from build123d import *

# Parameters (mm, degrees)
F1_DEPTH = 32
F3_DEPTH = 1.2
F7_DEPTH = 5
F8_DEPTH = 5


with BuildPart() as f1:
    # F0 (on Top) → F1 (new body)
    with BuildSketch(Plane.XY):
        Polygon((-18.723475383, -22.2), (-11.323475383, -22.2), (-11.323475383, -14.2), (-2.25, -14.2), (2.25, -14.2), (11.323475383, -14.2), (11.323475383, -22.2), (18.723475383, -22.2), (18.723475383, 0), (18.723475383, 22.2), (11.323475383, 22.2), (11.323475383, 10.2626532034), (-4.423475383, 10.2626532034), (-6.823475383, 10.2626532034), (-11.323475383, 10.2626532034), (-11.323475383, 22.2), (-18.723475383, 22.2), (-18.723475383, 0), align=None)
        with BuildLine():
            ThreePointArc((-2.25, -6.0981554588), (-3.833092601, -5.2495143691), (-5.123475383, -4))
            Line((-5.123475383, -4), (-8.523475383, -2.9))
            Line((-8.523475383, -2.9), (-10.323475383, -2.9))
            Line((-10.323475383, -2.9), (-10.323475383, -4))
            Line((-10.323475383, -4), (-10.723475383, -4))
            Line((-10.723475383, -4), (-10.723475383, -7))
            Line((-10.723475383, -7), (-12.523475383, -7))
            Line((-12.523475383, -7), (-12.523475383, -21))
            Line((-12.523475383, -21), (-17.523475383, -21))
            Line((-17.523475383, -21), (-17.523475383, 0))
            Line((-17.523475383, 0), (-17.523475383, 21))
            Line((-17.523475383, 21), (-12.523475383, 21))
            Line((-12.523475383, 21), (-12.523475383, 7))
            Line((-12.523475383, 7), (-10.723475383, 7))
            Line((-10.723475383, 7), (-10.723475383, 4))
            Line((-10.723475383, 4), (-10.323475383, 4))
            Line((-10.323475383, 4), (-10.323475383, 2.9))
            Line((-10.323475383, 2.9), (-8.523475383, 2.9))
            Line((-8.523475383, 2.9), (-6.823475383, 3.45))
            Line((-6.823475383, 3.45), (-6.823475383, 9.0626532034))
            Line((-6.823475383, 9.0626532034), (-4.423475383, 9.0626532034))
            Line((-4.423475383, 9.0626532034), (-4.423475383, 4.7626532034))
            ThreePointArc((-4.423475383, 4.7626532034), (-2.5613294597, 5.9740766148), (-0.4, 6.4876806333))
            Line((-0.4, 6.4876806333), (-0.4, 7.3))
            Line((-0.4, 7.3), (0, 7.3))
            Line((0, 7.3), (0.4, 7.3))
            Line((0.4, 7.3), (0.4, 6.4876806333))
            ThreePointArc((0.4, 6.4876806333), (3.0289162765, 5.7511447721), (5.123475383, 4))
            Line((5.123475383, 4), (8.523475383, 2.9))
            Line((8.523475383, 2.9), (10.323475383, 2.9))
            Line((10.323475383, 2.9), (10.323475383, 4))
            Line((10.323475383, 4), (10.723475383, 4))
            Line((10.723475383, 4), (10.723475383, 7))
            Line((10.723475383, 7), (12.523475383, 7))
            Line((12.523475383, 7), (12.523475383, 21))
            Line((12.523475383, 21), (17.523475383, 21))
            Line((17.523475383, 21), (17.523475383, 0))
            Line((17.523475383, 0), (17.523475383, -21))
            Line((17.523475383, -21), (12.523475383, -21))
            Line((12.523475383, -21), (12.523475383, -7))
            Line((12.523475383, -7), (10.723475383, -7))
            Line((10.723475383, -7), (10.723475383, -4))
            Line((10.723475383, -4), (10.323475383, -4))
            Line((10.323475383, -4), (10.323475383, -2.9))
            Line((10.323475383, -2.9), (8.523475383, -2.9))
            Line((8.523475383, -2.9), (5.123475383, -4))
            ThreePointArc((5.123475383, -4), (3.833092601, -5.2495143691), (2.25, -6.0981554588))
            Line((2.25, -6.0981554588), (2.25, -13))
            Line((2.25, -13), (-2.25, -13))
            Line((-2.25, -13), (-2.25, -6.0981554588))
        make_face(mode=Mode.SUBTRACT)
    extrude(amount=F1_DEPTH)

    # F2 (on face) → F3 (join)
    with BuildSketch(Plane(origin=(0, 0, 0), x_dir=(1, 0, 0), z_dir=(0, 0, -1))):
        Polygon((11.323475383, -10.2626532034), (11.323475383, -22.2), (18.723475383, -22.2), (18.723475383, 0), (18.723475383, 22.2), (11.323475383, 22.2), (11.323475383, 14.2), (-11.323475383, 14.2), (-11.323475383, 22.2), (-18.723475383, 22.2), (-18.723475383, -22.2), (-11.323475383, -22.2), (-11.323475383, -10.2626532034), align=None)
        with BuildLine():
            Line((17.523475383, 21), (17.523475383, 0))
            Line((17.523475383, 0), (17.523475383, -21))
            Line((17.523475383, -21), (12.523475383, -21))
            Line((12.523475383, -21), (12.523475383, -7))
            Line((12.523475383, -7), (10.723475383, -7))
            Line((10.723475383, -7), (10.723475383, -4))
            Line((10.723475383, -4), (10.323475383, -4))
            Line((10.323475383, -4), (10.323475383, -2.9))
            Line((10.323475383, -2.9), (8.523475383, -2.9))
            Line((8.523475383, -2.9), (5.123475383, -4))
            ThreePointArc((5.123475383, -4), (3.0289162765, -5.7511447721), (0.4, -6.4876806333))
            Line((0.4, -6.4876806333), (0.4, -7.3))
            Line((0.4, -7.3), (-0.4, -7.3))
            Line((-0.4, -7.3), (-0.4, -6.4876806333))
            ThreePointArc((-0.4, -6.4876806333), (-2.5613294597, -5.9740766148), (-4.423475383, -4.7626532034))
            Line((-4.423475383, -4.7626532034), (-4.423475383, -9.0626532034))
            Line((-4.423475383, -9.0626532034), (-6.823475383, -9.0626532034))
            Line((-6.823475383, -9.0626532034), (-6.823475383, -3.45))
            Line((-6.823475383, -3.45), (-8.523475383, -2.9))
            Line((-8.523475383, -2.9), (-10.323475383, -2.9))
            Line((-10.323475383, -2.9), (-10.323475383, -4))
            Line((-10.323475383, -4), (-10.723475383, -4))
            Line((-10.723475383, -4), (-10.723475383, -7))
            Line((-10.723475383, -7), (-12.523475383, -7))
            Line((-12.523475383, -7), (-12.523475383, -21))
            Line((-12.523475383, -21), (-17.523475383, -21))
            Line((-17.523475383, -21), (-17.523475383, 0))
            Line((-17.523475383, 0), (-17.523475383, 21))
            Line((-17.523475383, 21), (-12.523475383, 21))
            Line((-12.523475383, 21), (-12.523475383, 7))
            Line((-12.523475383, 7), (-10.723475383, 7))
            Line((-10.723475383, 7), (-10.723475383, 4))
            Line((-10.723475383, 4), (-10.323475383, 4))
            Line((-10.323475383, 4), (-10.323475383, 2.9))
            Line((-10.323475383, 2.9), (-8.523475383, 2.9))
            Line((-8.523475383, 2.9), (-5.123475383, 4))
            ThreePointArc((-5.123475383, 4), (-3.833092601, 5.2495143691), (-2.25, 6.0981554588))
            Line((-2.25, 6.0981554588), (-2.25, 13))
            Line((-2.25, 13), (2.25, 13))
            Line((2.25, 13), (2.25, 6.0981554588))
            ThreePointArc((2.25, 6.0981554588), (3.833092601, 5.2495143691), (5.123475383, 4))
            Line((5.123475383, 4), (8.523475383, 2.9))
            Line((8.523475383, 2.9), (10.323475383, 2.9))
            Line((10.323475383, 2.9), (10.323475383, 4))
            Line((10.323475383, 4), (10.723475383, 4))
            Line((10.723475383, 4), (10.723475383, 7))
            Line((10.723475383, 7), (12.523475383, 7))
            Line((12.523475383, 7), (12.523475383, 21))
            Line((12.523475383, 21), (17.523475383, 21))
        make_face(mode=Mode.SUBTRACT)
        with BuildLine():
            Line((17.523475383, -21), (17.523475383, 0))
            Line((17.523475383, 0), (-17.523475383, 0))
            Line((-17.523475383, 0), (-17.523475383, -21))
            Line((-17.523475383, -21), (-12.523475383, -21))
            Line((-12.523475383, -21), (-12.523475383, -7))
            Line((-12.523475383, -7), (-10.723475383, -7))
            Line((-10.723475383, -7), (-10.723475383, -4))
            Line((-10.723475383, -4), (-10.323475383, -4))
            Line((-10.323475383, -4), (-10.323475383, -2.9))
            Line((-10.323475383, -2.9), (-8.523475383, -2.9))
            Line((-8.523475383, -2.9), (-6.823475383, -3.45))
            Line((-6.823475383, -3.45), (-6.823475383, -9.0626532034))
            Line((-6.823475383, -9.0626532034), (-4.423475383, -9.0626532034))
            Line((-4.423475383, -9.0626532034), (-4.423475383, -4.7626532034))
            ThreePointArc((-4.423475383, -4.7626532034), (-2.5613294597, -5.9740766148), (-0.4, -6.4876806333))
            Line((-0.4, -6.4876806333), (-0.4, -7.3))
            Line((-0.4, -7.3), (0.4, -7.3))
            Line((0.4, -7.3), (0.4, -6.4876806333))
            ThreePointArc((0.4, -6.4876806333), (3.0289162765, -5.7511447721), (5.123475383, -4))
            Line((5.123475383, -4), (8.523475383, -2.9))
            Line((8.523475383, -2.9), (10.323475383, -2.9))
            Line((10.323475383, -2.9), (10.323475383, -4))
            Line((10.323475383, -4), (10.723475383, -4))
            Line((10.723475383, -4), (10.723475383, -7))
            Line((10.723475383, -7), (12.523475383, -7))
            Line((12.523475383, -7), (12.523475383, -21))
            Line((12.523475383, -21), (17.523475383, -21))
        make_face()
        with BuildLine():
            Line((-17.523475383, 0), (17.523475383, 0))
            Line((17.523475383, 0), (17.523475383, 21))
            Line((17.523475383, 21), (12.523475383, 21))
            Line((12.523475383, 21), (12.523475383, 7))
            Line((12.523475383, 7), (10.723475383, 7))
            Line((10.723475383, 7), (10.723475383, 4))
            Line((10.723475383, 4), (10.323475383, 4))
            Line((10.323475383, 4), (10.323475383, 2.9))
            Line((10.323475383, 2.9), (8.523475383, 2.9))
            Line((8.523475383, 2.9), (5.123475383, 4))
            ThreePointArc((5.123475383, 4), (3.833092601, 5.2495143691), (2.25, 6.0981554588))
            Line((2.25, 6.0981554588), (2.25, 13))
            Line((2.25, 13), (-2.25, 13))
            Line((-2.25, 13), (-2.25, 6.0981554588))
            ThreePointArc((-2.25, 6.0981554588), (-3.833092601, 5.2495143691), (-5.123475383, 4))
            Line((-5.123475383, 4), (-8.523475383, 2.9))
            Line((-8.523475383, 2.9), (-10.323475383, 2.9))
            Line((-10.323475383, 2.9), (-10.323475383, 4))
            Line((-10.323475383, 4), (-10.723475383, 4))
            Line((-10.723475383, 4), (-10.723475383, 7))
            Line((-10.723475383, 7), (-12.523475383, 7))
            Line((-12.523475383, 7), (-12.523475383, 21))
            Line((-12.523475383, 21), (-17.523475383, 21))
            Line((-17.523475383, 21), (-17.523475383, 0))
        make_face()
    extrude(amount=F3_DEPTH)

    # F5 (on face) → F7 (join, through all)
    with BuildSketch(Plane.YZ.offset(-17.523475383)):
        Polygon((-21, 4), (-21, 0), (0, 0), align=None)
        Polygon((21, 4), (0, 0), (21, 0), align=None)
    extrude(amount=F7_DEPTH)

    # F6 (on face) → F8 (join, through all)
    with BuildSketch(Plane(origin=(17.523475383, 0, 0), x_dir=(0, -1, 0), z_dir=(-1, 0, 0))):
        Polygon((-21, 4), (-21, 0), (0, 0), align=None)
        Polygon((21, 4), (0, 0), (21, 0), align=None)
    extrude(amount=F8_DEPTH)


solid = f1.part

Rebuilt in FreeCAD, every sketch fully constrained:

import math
import FreeCAD as App
import Part
import Sketcher

V = App.Vector
Q = App.Units.Quantity

doc = App.newDocument("Part")
body = doc.addObject("PartDesign::Body", "Body")

sketch1 = body.newObject("Sketcher::SketchObject", "Sketch")
sketch1.AttachmentSupport = (doc.getObject("XY_Plane"), [""])
sketch1.MapMode = "FlatFace"
sketch1.addGeometry(Part.LineSegment(V(-18.723475, -22.2, 0), V(-11.323475, -22.2, 0)), False)
sketch1.addGeometry(Part.LineSegment(V(-11.323475, -22.2, 0), V(-11.323475, -14.2, 0)), False)
sketch1.addGeometry(Part.LineSegment(V(-11.323475, -14.2, 0), V(11.323475, -14.2, 0)), False)
sketch1.addGeometry(Part.LineSegment(V(11.323475, -14.2, 0), V(11.323475, -22.2, 0)), False)
sketch1.addGeometry(Part.LineSegment(V(11.323475, -22.2, 0), V(18.723475, -22.2, 0)), False)
sketch1.addGeometry(Part.LineSegment(V(18.723475, -22.2, 0), V(18.723475, 22.2, 0)), False)
sketch1.addGeometry(Part.LineSegment(V(18.723475, 22.2, 0), V(11.323475, 22.2, 0)), False)
sketch1.addGeometry(Part.LineSegment(V(11.323475, 22.2, 0), V(11.323475, 10.262653, 0)), False)
sketch1.addGeometry(Part.LineSegment(V(11.323475, 10.262653, 0), V(-11.323475, 10.262653, 0)), False)
sketch1.addGeometry(Part.LineSegment(V(-11.323475, 10.262653, 0), V(-11.323475, 22.2, 0)), False)
sketch1.addGeometry(Part.LineSegment(V(-11.323475, 22.2, 0), V(-18.723475, 22.2, 0)), False)
sketch1.addGeometry(Part.LineSegment(V(-18.723475, 22.2, 0), V(-18.723475, -22.2, 0)), False)
sketch1.addGeometry(Part.LineSegment(V(-2.25, -13, 0), V(-2.25, -6.098155, 0)), False)
sketch1.addGeometry(Part.ArcOfCircle(Part.Circle(V(0, 0, 0), V(0, 0, 1), 6.5), math.radians(-142.020128), math.radians(-110.252247)), False)
sketch1.addGeometry(Part.LineSegment(V(-5.123475, -4, 0), V(-8.523475, -2.9, 0)), False)
sketch1.addGeometry(Part.LineSegment(V(-8.523475, -2.9, 0), V(-10.323475, -2.9, 0)), False)
sketch1.addGeometry(Part.LineSegment(V(-10.323475, -2.9, 0), V(-10.323475, -4, 0)), False)
sketch1.addGeometry(Part.LineSegment(V(-10.323475, -4, 0), V(-10.723475, -4, 0)), False)
sketch1.addGeometry(Part.LineSegment(V(-10.723475, -4, 0), V(-10.723475, -7, 0)), False)
sketch1.addGeometry(Part.LineSegment(V(-10.723475, -7, 0), V(-12.523475, -7, 0)), False)
sketch1.addGeometry(Part.LineSegment(V(-12.523475, -7, 0), V(-12.523475, -21, 0)), False)
sketch1.addGeometry(Part.LineSegment(V(-12.523475, -21, 0), V(-17.523475, -21, 0)), False)
sketch1.addGeometry(Part.LineSegment(V(-17.523475, -21, 0), V(-17.523475, 21, 0)), False)
sketch1.addGeometry(Part.LineSegment(V(-17.523475, 21, 0), V(-12.523475, 21, 0)), False)
sketch1.addGeometry(Part.LineSegment(V(-12.523475, 21, 0), V(-12.523475, 7, 0)), False)
sketch1.addGeometry(Part.LineSegment(V(-12.523475, 7, 0), V(-10.723475, 7, 0)), False)
sketch1.addGeometry(Part.LineSegment(V(-10.723475, 7, 0), V(-10.723475, 4, 0)), False)
sketch1.addGeometry(Part.LineSegment(V(-10.723475, 4, 0), V(-10.323475, 4, 0)), False)
sketch1.addGeometry(Part.LineSegment(V(-10.323475, 4, 0), V(-10.323475, 2.9, 0)), False)
sketch1.addGeometry(Part.LineSegment(V(-10.323475, 2.9, 0), V(-8.523475, 2.9, 0)), False)
sketch1.addGeometry(Part.LineSegment(V(-8.523475, 2.9, 0), V(-6.823475, 3.45, 0)), False)
sketch1.addGeometry(Part.LineSegment(V(-6.823475, 3.45, 0), V(-6.823475, 9.062653, 0)), False)
sketch1.addGeometry(Part.LineSegment(V(-6.823475, 9.062653, 0), V(-4.423475, 9.062653, 0)), False)
sketch1.addGeometry(Part.LineSegment(V(-4.423475, 9.062653, 0), V(-4.423475, 4.762653, 0)), False)
sketch1.addGeometry(Part.ArcOfCircle(Part.Circle(V(0, 0, 0), V(0, 0, 1), 6.5), math.radians(93.528123), math.radians(132.885439)), False)
sketch1.addGeometry(Part.LineSegment(V(-0.4, 6.487681, 0), V(-0.4, 7.3, 0)), False)
sketch1.addGeometry(Part.LineSegment(V(-0.4, 7.3, 0), V(0.4, 7.3, 0)), False)
sketch1.addGeometry(Part.LineSegment(V(0.4, 7.3, 0), V(0.4, 6.487681, 0)), False)
sketch1.addGeometry(Part.ArcOfCircle(Part.Circle(V(0, 0, 0), V(0, 0, 1), 6.5), math.radians(37.979872), math.radians(86.471877)), False)
sketch1.addGeometry(Part.LineSegment(V(5.123475, 4, 0), V(8.523475, 2.9, 0)), False)
sketch1.addGeometry(Part.LineSegment(V(8.523475, 2.9, 0), V(10.323475, 2.9, 0)), False)
sketch1.addGeometry(Part.LineSegment(V(10.323475, 2.9, 0), V(10.323475, 4, 0)), False)
sketch1.addGeometry(Part.LineSegment(V(10.323475, 4, 0), V(10.723475, 4, 0)), False)
sketch1.addGeometry(Part.LineSegment(V(10.723475, 4, 0), V(10.723475, 7, 0)), False)
sketch1.addGeometry(Part.LineSegment(V(10.723475, 7, 0), V(12.523475, 7, 0)), False)
sketch1.addGeometry(Part.LineSegment(V(12.523475, 7, 0), V(12.523475, 21, 0)), False)
sketch1.addGeometry(Part.LineSegment(V(12.523475, 21, 0), V(17.523475, 21, 0)), False)
sketch1.addGeometry(Part.LineSegment(V(17.523475, 21, 0), V(17.523475, -21, 0)), False)
sketch1.addGeometry(Part.LineSegment(V(17.523475, -21, 0), V(12.523475, -21, 0)), False)
sketch1.addGeometry(Part.LineSegment(V(12.523475, -21, 0), V(12.523475, -7, 0)), False)
sketch1.addGeometry(Part.LineSegment(V(12.523475, -7, 0), V(10.723475, -7, 0)), False)
sketch1.addGeometry(Part.LineSegment(V(10.723475, -7, 0), V(10.723475, -4, 0)), False)
sketch1.addGeometry(Part.LineSegment(V(10.723475, -4, 0), V(10.323475, -4, 0)), False)
sketch1.addGeometry(Part.LineSegment(V(10.323475, -4, 0), V(10.323475, -2.9, 0)), False)
sketch1.addGeometry(Part.LineSegment(V(10.323475, -2.9, 0), V(8.523475, -2.9, 0)), False)
sketch1.addGeometry(Part.LineSegment(V(8.523475, -2.9, 0), V(5.123475, -4, 0)), False)
sketch1.addGeometry(Part.ArcOfCircle(Part.Circle(V(0, 0, 0), V(0, 0, 1), 6.5), math.radians(-69.747753), math.radians(-37.979872)), False)
sketch1.addGeometry(Part.LineSegment(V(2.25, -6.098155, 0), V(2.25, -13, 0)), False)
sketch1.addGeometry(Part.LineSegment(V(2.25, -13, 0), V(-2.25, -13, 0)), False)
sketch1.addConstraint(Sketcher.Constraint("Coincident", 0, 2, 1, 1))
sketch1.addConstraint(Sketcher.Constraint("Coincident", 1, 2, 2, 1))
sketch1.addConstraint(Sketcher.Constraint("Coincident", 2, 2, 3, 1))
sketch1.addConstraint(Sketcher.Constraint("Coincident", 3, 2, 4, 1))
sketch1.addConstraint(Sketcher.Constraint("Coincident", 4, 2, 5, 1))
sketch1.addConstraint(Sketcher.Constraint("Coincident", 5, 2, 6, 1))
sketch1.addConstraint(Sketcher.Constraint("Coincident", 6, 2, 7, 1))
sketch1.addConstraint(Sketcher.Constraint("Coincident", 7, 2, 8, 1))
sketch1.addConstraint(Sketcher.Constraint("Coincident", 8, 2, 9, 1))
sketch1.addConstraint(Sketcher.Constraint("Coincident", 9, 2, 10, 1))
sketch1.addConstraint(Sketcher.Constraint("Coincident", 10, 2, 11, 1))
sketch1.addConstraint(Sketcher.Constraint("Coincident", 11, 2, 0, 1))
sketch1.addConstraint(Sketcher.Constraint("Coincident", 12, 2, 13, 2))
sketch1.addConstraint(Sketcher.Constraint("Coincident", 13, 1, 14, 1))
sketch1.addConstraint(Sketcher.Constraint("Coincident", 14, 2, 15, 1))
sketch1.addConstraint(Sketcher.Constraint("Coincident", 15, 2, 16, 1))
sketch1.addConstraint(Sketcher.Constraint("Coincident", 16, 2, 17, 1))
sketch1.addConstraint(Sketcher.Constraint("Coincident", 17, 2, 18, 1))
sketch1.addConstraint(Sketcher.Constraint("Coincident", 18, 2, 19, 1))
sketch1.addConstraint(Sketcher.Constraint("Coincident", 19, 2, 20, 1))
sketch1.addConstraint(Sketcher.Constraint("Coincident", 20, 2, 21, 1))
sketch1.addConstraint(Sketcher.Constraint("Coincident", 21, 2, 22, 1))
sketch1.addConstraint(Sketcher.Constraint("Coincident", 22, 2, 23, 1))
sketch1.addConstraint(Sketcher.Constraint("Coincident", 23, 2, 24, 1))
sketch1.addConstraint(Sketcher.Constraint("Coincident", 24, 2, 25, 1))
sketch1.addConstraint(Sketcher.Constraint("Coincident", 25, 2, 26, 1))
sketch1.addConstraint(Sketcher.Constraint("Coincident", 26, 2, 27, 1))
sketch1.addConstraint(Sketcher.Constraint("Coincident", 27, 2, 28, 1))
sketch1.addConstraint(Sketcher.Constraint("Coincident", 28, 2, 29, 1))
sketch1.addConstraint(Sketcher.Constraint("Coincident", 29, 2, 30, 1))
sketch1.addConstraint(Sketcher.Constraint("Coincident", 30, 2, 31, 1))
sketch1.addConstraint(Sketcher.Constraint("Coincident", 31, 2, 32, 1))
sketch1.addConstraint(Sketcher.Constraint("Coincident", 32, 2, 33, 1))
sketch1.addConstraint(Sketcher.Constraint("Coincident", 33, 2, 34, 2))
sketch1.addConstraint(Sketcher.Constraint("Coincident", 34, 1, 35, 1))
sketch1.addConstraint(Sketcher.Constraint("Coincident", 35, 2, 36, 1))
sketch1.addConstraint(Sketcher.Constraint("Coincident", 36, 2, 37, 1))
sketch1.addConstraint(Sketcher.Constraint("Coincident", 37, 2, 38, 2))
sketch1.addConstraint(Sketcher.Constraint("Coincident", 38, 1, 39, 1))
sketch1.addConstraint(Sketcher.Constraint("Coincident", 39, 2, 40, 1))
sketch1.addConstraint(Sketcher.Constraint("Coincident", 40, 2, 41, 1))
sketch1.addConstraint(Sketcher.Constraint("Coincident", 41, 2, 42, 1))
sketch1.addConstraint(Sketcher.Constraint("Coincident", 42, 2, 43, 1))
sketch1.addConstraint(Sketcher.Constraint("Coincident", 43, 2, 44, 1))
sketch1.addConstraint(Sketcher.Constraint("Coincident", 44, 2, 45, 1))
sketch1.addConstraint(Sketcher.Constraint("Coincident", 45, 2, 46, 1))
sketch1.addConstraint(Sketcher.Constraint("Coincident", 46, 2, 47, 1))
sketch1.addConstraint(Sketcher.Constraint("Coincident", 47, 2, 48, 1))
sketch1.addConstraint(Sketcher.Constraint("Coincident", 48, 2, 49, 1))
sketch1.addConstraint(Sketcher.Constraint("Coincident", 49, 2, 50, 1))
sketch1.addConstraint(Sketcher.Constraint("Coincident", 50, 2, 51, 1))
sketch1.addConstraint(Sketcher.Constraint("Coincident", 51, 2, 52, 1))
sketch1.addConstraint(Sketcher.Constraint("Coincident", 52, 2, 53, 1))
sketch1.addConstraint(Sketcher.Constraint("Coincident", 53, 2, 54, 1))
sketch1.addConstraint(Sketcher.Constraint("Coincident", 54, 2, 55, 1))
sketch1.addConstraint(Sketcher.Constraint("Coincident", 55, 2, 56, 2))
sketch1.addConstraint(Sketcher.Constraint("Coincident", 56, 1, 57, 1))
sketch1.addConstraint(Sketcher.Constraint("Coincident", 57, 2, 58, 1))
sketch1.addConstraint(Sketcher.Constraint("Coincident", 58, 2, 12, 1))
sketch1.addConstraint(Sketcher.Constraint("Horizontal", 0))
sketch1.addConstraint(Sketcher.Constraint("Vertical", 1))
sketch1.addConstraint(Sketcher.Constraint("Horizontal", 2))
sketch1.addConstraint(Sketcher.Constraint("Vertical", 3))
sketch1.addConstraint(Sketcher.Constraint("Horizontal", 4))
sketch1.addConstraint(Sketcher.Constraint("Vertical", 5))
sketch1.addConstraint(Sketcher.Constraint("Horizontal", 6))
sketch1.addConstraint(Sketcher.Constraint("Vertical", 7))
sketch1.addConstraint(Sketcher.Constraint("Horizontal", 8))
sketch1.addConstraint(Sketcher.Constraint("Vertical", 9))
sketch1.addConstraint(Sketcher.Constraint("Horizontal", 10))
sketch1.addConstraint(Sketcher.Constraint("Vertical", 11))
sketch1.addConstraint(Sketcher.Constraint("Vertical", 12))
sketch1.addConstraint(Sketcher.Constraint("Horizontal", 15))
sketch1.addConstraint(Sketcher.Constraint("Vertical", 16))
sketch1.addConstraint(Sketcher.Constraint("Horizontal", 17))
sketch1.addConstraint(Sketcher.Constraint("Vertical", 18))
sketch1.addConstraint(Sketcher.Constraint("Horizontal", 19))
sketch1.addConstraint(Sketcher.Constraint("Vertical", 20))
sketch1.addConstraint(Sketcher.Constraint("Horizontal", 21))
sketch1.addConstraint(Sketcher.Constraint("Vertical", 22))
sketch1.addConstraint(Sketcher.Constraint("Horizontal", 23))
sketch1.addConstraint(Sketcher.Constraint("Vertical", 24))
sketch1.addConstraint(Sketcher.Constraint("Horizontal", 25))
sketch1.addConstraint(Sketcher.Constraint("Vertical", 26))
sketch1.addConstraint(Sketcher.Constraint("Horizontal", 27))
sketch1.addConstraint(Sketcher.Constraint("Vertical", 28))
sketch1.addConstraint(Sketcher.Constraint("Horizontal", 29))
sketch1.addConstraint(Sketcher.Constraint("Vertical", 31))
sketch1.addConstraint(Sketcher.Constraint("Horizontal", 32))
sketch1.addConstraint(Sketcher.Constraint("Vertical", 33))
sketch1.addConstraint(Sketcher.Constraint("Vertical", 35))
sketch1.addConstraint(Sketcher.Constraint("Horizontal", 36))
sketch1.addConstraint(Sketcher.Constraint("Vertical", 37))
sketch1.addConstraint(Sketcher.Constraint("Horizontal", 40))
sketch1.addConstraint(Sketcher.Constraint("Vertical", 41))
sketch1.addConstraint(Sketcher.Constraint("Horizontal", 42))
sketch1.addConstraint(Sketcher.Constraint("Vertical", 43))
sketch1.addConstraint(Sketcher.Constraint("Horizontal", 44))
sketch1.addConstraint(Sketcher.Constraint("Vertical", 45))
sketch1.addConstraint(Sketcher.Constraint("Horizontal", 46))
sketch1.addConstraint(Sketcher.Constraint("Vertical", 47))
sketch1.addConstraint(Sketcher.Constraint("Horizontal", 48))
sketch1.addConstraint(Sketcher.Constraint("Vertical", 49))
sketch1.addConstraint(Sketcher.Constraint("Horizontal", 50))
sketch1.addConstraint(Sketcher.Constraint("Vertical", 51))
sketch1.addConstraint(Sketcher.Constraint("Horizontal", 52))
sketch1.addConstraint(Sketcher.Constraint("Vertical", 53))
sketch1.addConstraint(Sketcher.Constraint("Horizontal", 54))
sketch1.addConstraint(Sketcher.Constraint("Vertical", 57))
sketch1.addConstraint(Sketcher.Constraint("Horizontal", 58))
sketch1.addConstraint(Sketcher.Constraint("Coincident", 13, 3, -1, 1))
sketch1.addConstraint(Sketcher.Constraint("Coincident", 34, 3, -1, 1))
sketch1.addConstraint(Sketcher.Constraint("Coincident", 38, 3, -1, 1))
sketch1.addConstraint(Sketcher.Constraint("Coincident", 56, 3, -1, 1))
sketch1.addConstraint(Sketcher.Constraint("Equal", 13, 34))
sketch1.addConstraint(Sketcher.Constraint("Equal", 34, 38))
sketch1.addConstraint(Sketcher.Constraint("Equal", 38, 56))
sketch1.addConstraint(Sketcher.Constraint("Symmetric", 0, 2, 6, 2, -1, 1))
sketch1.addConstraint(Sketcher.Constraint("Symmetric", 3, 2, 9, 2, -1, 1))
sketch1.addConstraint(Sketcher.Constraint("Symmetric", 14, 2, 39, 2, -1, 1))
sketch1.addConstraint(Sketcher.Constraint("Symmetric", 16, 2, 41, 2, -1, 1))
sketch1.addConstraint(Sketcher.Constraint("Symmetric", 18, 2, 43, 2, -1, 1))
sketch1.addConstraint(Sketcher.Constraint("Symmetric", 20, 2, 45, 2, -1, 1))
sketch1.addConstraint(Sketcher.Constraint("Symmetric", 22, 2, 47, 2, -1, 1))
sketch1.addConstraint(Sketcher.Constraint("Symmetric", 24, 2, 49, 2, -1, 1))
sketch1.addConstraint(Sketcher.Constraint("Symmetric", 26, 2, 51, 2, -1, 1))
sketch1.addConstraint(Sketcher.Constraint("Symmetric", 28, 2, 53, 2, -1, 1))
sketch1.addConstraint(Sketcher.Constraint("Symmetric", 0, 2, 3, 2, -2))
sketch1.addConstraint(Sketcher.Constraint("Symmetric", 29, 2, 39, 2, -2))
sketch1.addConstraint(Sketcher.Constraint("Symmetric", 27, 2, 41, 2, -2))
sketch1.addConstraint(Sketcher.Constraint("Symmetric", 25, 2, 43, 2, -2))
sketch1.addConstraint(Sketcher.Constraint("Symmetric", 23, 2, 45, 2, -2))
sketch1.addConstraint(Sketcher.Constraint("Parallel", 14, 39))
sketch1.addConstraint(Sketcher.Constraint("Parallel", 30, 55))
sketch1.addConstraint(Sketcher.Constraint("Horizontal", 13, 1, 16, 2))
sketch1.addConstraint(Sketcher.Constraint("Horizontal", 34, 1, 37, 2))
sketch1.addConstraint(Sketcher.Constraint("Horizontal", 52, 2, 55, 2))
sketch1.addConstraint(Sketcher.Constraint("Horizontal", 12, 2, 56, 1))
sketch1.addConstraint(Sketcher.Constraint("Vertical", 39, 2, 54, 2))
sketch1.addConstraint(Sketcher.Constraint("Equal", 0, 4))
sketch1.addConstraint(Sketcher.Constraint("Equal", 15, 19))
sketch1.addConstraint(Sketcher.Constraint("Radius", 13, Q("6.5 mm")))
sketch1.addConstraint(Sketcher.Constraint("DistanceX", 21, 2, 21, 1, Q("5 mm")))
sketch1.addConstraint(Sketcher.Constraint("DistanceY", 1, 1, 1, 2, Q("8 mm")))
sketch1.addConstraint(Sketcher.Constraint("DistanceY", 18, 2, 18, 1, Q("3 mm")))
sketch1.addConstraint(Sketcher.Constraint("DistanceY", 20, 2, 20, 1, Q("14 mm")))
sketch1.addConstraint(Sketcher.Constraint("DistanceY", 22, 1, 22, 2, Q("42 mm")))
sketch1.addConstraint(Sketcher.Constraint("DistanceX", 0, 1, 0, 2, Q("7.4 mm")))
sketch1.addConstraint(Sketcher.Constraint("DistanceX", 15, 2, 15, 1, Q("1.8 mm")))
sketch1.addConstraint(Sketcher.Constraint("DistanceX", 17, 2, 17, 1, Q("0.4 mm")))
sketch1.addConstraint(Sketcher.Constraint("DistanceX", 32, 1, 32, 2, Q("2.4 mm")))
sketch1.addConstraint(Sketcher.Constraint("DistanceX", 36, 1, 36, 2, Q("0.8 mm")))
sketch1.addConstraint(Sketcher.Constraint("DistanceX", 58, 2, 58, 1, Q("4.5 mm")))
sketch1.addConstraint(Sketcher.Constraint("DistanceY", 5, 1, 5, 2, Q("44.4 mm")))
sketch1.addConstraint(Sketcher.Constraint("DistanceY", 16, 2, 16, 1, Q("1.1 mm")))
sketch1.addConstraint(Sketcher.Constraint("DistanceY", 33, 2, 33, 1, Q("4.3 mm")))
sketch1.addConstraint(Sketcher.Constraint("DistanceY", 57, 2, -1, 1, Q("13 mm")))
sketch1.addConstraint(Sketcher.Constraint("DistanceY", -1, 1, 35, 2, Q("7.3 mm")))
sketch1.addConstraint(Sketcher.Constraint("DistanceY", -1, 1, 30, 2, Q("3.45 mm")))
sketch1.addConstraint(Sketcher.Constraint("DistanceX", 2, 1, 2, 2, Q("22.646951 mm")))
sketch1.addConstraint(Sketcher.Constraint("DistanceY", 7, 2, 7, 1, Q("11.937347 mm")))
sketch1.addConstraint(Sketcher.Constraint("DistanceY", 31, 1, 31, 2, Q("5.612653 mm")))
pad1 = body.newObject("PartDesign::Pad", "Pad")
pad1.Profile = sketch1
pad1.Length = 32

sketch2 = body.newObject("Sketcher::SketchObject", "Sketch001")
sketch2.AttachmentSupport = (doc.getObject("XY_Plane"), [""])
sketch2.MapMode = "FlatFace"
sketch2.addGeometry(Part.LineSegment(V(11.323475, 10.262653, 0), V(11.323475, 22.2, 0)), False)
sketch2.addGeometry(Part.LineSegment(V(11.323475, 22.2, 0), V(18.723475, 22.2, 0)), False)
sketch2.addGeometry(Part.LineSegment(V(18.723475, 22.2, 0), V(18.723475, -22.2, 0)), False)
sketch2.addGeometry(Part.LineSegment(V(18.723475, -22.2, 0), V(11.323475, -22.2, 0)), False)
sketch2.addGeometry(Part.LineSegment(V(11.323475, -22.2, 0), V(11.323475, -14.2, 0)), False)
sketch2.addGeometry(Part.LineSegment(V(11.323475, -14.2, 0), V(-11.323475, -14.2, 0)), False)
sketch2.addGeometry(Part.LineSegment(V(-11.323475, -14.2, 0), V(-11.323475, -22.2, 0)), False)
sketch2.addGeometry(Part.LineSegment(V(-11.323475, -22.2, 0), V(-18.723475, -22.2, 0)), False)
sketch2.addGeometry(Part.LineSegment(V(-18.723475, -22.2, 0), V(-18.723475, 22.2, 0)), False)
sketch2.addGeometry(Part.LineSegment(V(-18.723475, 22.2, 0), V(-11.323475, 22.2, 0)), False)
sketch2.addGeometry(Part.LineSegment(V(-11.323475, 22.2, 0), V(-11.323475, 10.262653, 0)), False)
sketch2.addGeometry(Part.LineSegment(V(-11.323475, 10.262653, 0), V(11.323475, 10.262653, 0)), False)
sketch2.addConstraint(Sketcher.Constraint("Coincident", 0, 2, 1, 1))
sketch2.addConstraint(Sketcher.Constraint("Coincident", 1, 2, 2, 1))
sketch2.addConstraint(Sketcher.Constraint("Coincident", 2, 2, 3, 1))
sketch2.addConstraint(Sketcher.Constraint("Coincident", 3, 2, 4, 1))
sketch2.addConstraint(Sketcher.Constraint("Coincident", 4, 2, 5, 1))
sketch2.addConstraint(Sketcher.Constraint("Coincident", 5, 2, 6, 1))
sketch2.addConstraint(Sketcher.Constraint("Coincident", 6, 2, 7, 1))
sketch2.addConstraint(Sketcher.Constraint("Coincident", 7, 2, 8, 1))
sketch2.addConstraint(Sketcher.Constraint("Coincident", 8, 2, 9, 1))
sketch2.addConstraint(Sketcher.Constraint("Coincident", 9, 2, 10, 1))
sketch2.addConstraint(Sketcher.Constraint("Coincident", 10, 2, 11, 1))
sketch2.addConstraint(Sketcher.Constraint("Coincident", 11, 2, 0, 1))
sketch2.addConstraint(Sketcher.Constraint("Vertical", 0))
sketch2.addConstraint(Sketcher.Constraint("Horizontal", 1))
sketch2.addConstraint(Sketcher.Constraint("Vertical", 2))
sketch2.addConstraint(Sketcher.Constraint("Horizontal", 3))
sketch2.addConstraint(Sketcher.Constraint("Vertical", 4))
sketch2.addConstraint(Sketcher.Constraint("Horizontal", 5))
sketch2.addConstraint(Sketcher.Constraint("Vertical", 6))
sketch2.addConstraint(Sketcher.Constraint("Horizontal", 7))
sketch2.addConstraint(Sketcher.Constraint("Vertical", 8))
sketch2.addConstraint(Sketcher.Constraint("Horizontal", 9))
sketch2.addConstraint(Sketcher.Constraint("Vertical", 10))
sketch2.addConstraint(Sketcher.Constraint("Horizontal", 11))
sketch2.addConstraint(Sketcher.Constraint("Symmetric", 0, 2, 6, 2, -1, 1))
sketch2.addConstraint(Sketcher.Constraint("Symmetric", 2, 2, 8, 2, -1, 1))
sketch2.addConstraint(Sketcher.Constraint("Symmetric", 3, 2, 6, 2, -2))
sketch2.addConstraint(Sketcher.Constraint("Vertical", 6, 2, 9, 2))
sketch2.addConstraint(Sketcher.Constraint("DistanceY", 4, 1, 4, 2, Q("8 mm")))
sketch2.addConstraint(Sketcher.Constraint("DistanceX", 1, 1, 1, 2, Q("7.4 mm")))
sketch2.addConstraint(Sketcher.Constraint("DistanceY", 2, 2, 2, 1, Q("44.4 mm")))
sketch2.addConstraint(Sketcher.Constraint("DistanceX", 5, 2, 5, 1, Q("22.646951 mm")))
sketch2.addConstraint(Sketcher.Constraint("DistanceY", 0, 1, 0, 2, Q("11.937347 mm")))
pad2 = body.newObject("PartDesign::Pad", "Pad001")
pad2.Profile = sketch2
pad2.Length = 1.2
pad2.Reversed = True

sketch3 = body.newObject("Sketcher::SketchObject", "Sketch002")
sketch3.AttachmentSupport = (doc.getObject("YZ_Plane"), [""])
sketch3.MapMode = "FlatFace"
sketch3.AttachmentOffset = App.Placement(V(0, 0, -17.523475), App.Rotation())
sketch3.addGeometry(Part.LineSegment(V(-21, 4, 0), V(-21, 0, 0)), False)
sketch3.addGeometry(Part.LineSegment(V(-21, 0, 0), V(0, 0, 0)), False)
sketch3.addGeometry(Part.LineSegment(V(0, 0, 0), V(-21, 4, 0)), False)
sketch3.addGeometry(Part.LineSegment(V(21, 4, 0), V(0, 0, 0)), False)
sketch3.addGeometry(Part.LineSegment(V(0, 0, 0), V(21, 0, 0)), False)
sketch3.addGeometry(Part.LineSegment(V(21, 0, 0), V(21, 4, 0)), False)
sketch3.addConstraint(Sketcher.Constraint("Coincident", 0, 2, 1, 1))
sketch3.addConstraint(Sketcher.Constraint("Coincident", 1, 2, 2, 1))
sketch3.addConstraint(Sketcher.Constraint("Coincident", 2, 2, 0, 1))
sketch3.addConstraint(Sketcher.Constraint("Coincident", 3, 2, 4, 1))
sketch3.addConstraint(Sketcher.Constraint("Coincident", 4, 2, 5, 1))
sketch3.addConstraint(Sketcher.Constraint("Coincident", 5, 2, 3, 1))
sketch3.addConstraint(Sketcher.Constraint("Vertical", 0))
sketch3.addConstraint(Sketcher.Constraint("Horizontal", 1))
sketch3.addConstraint(Sketcher.Constraint("Horizontal", 4))
sketch3.addConstraint(Sketcher.Constraint("Vertical", 5))
sketch3.addConstraint(Sketcher.Constraint("Coincident", 1, 2, -1, 1))
sketch3.addConstraint(Sketcher.Constraint("Coincident", 3, 2, -1, 1))
sketch3.addConstraint(Sketcher.Constraint("Symmetric", 2, 2, 5, 2, -2))
sketch3.addConstraint(Sketcher.Constraint("DistanceX", 1, 1, 1, 2, Q("21 mm")))
sketch3.addConstraint(Sketcher.Constraint("DistanceY", 0, 2, 0, 1, Q("4 mm")))
pad3 = body.newObject("PartDesign::Pad", "Pad002")
pad3.Profile = sketch3
pad3.Length = 5

sketch4 = body.newObject("Sketcher::SketchObject", "Sketch003")
sketch4.AttachmentSupport = (doc.getObject("YZ_Plane"), [""])
sketch4.MapMode = "FlatFace"
sketch4.AttachmentOffset = App.Placement(V(0, 0, 17.523475), App.Rotation())
sketch4.addGeometry(Part.LineSegment(V(21, 4, 0), V(21, 0, 0)), False)
sketch4.addGeometry(Part.LineSegment(V(21, 0, 0), V(0, 0, 0)), False)
sketch4.addGeometry(Part.LineSegment(V(0, 0, 0), V(21, 4, 0)), False)
sketch4.addGeometry(Part.LineSegment(V(-21, 4, 0), V(0, 0, 0)), False)
sketch4.addGeometry(Part.LineSegment(V(0, 0, 0), V(-21, 0, 0)), False)
sketch4.addGeometry(Part.LineSegment(V(-21, 0, 0), V(-21, 4, 0)), False)
sketch4.addConstraint(Sketcher.Constraint("Coincident", 0, 2, 1, 1))
sketch4.addConstraint(Sketcher.Constraint("Coincident", 1, 2, 2, 1))
sketch4.addConstraint(Sketcher.Constraint("Coincident", 2, 2, 0, 1))
sketch4.addConstraint(Sketcher.Constraint("Coincident", 3, 2, 4, 1))
sketch4.addConstraint(Sketcher.Constraint("Coincident", 4, 2, 5, 1))
sketch4.addConstraint(Sketcher.Constraint("Coincident", 5, 2, 3, 1))
sketch4.addConstraint(Sketcher.Constraint("Vertical", 0))
sketch4.addConstraint(Sketcher.Constraint("Horizontal", 1))
sketch4.addConstraint(Sketcher.Constraint("Horizontal", 4))
sketch4.addConstraint(Sketcher.Constraint("Vertical", 5))
sketch4.addConstraint(Sketcher.Constraint("Coincident", 1, 2, -1, 1))
sketch4.addConstraint(Sketcher.Constraint("Coincident", 3, 2, -1, 1))
sketch4.addConstraint(Sketcher.Constraint("Symmetric", 2, 2, 5, 2, -2))
sketch4.addConstraint(Sketcher.Constraint("DistanceX", 1, 2, 1, 1, Q("21 mm")))
sketch4.addConstraint(Sketcher.Constraint("DistanceY", 0, 2, 0, 1, Q("4 mm")))
pad4 = body.newObject("PartDesign::Pad", "Pad003")
pad4.Profile = sketch4
pad4.Length = 5
pad4.Reversed = True

doc.recompute()
